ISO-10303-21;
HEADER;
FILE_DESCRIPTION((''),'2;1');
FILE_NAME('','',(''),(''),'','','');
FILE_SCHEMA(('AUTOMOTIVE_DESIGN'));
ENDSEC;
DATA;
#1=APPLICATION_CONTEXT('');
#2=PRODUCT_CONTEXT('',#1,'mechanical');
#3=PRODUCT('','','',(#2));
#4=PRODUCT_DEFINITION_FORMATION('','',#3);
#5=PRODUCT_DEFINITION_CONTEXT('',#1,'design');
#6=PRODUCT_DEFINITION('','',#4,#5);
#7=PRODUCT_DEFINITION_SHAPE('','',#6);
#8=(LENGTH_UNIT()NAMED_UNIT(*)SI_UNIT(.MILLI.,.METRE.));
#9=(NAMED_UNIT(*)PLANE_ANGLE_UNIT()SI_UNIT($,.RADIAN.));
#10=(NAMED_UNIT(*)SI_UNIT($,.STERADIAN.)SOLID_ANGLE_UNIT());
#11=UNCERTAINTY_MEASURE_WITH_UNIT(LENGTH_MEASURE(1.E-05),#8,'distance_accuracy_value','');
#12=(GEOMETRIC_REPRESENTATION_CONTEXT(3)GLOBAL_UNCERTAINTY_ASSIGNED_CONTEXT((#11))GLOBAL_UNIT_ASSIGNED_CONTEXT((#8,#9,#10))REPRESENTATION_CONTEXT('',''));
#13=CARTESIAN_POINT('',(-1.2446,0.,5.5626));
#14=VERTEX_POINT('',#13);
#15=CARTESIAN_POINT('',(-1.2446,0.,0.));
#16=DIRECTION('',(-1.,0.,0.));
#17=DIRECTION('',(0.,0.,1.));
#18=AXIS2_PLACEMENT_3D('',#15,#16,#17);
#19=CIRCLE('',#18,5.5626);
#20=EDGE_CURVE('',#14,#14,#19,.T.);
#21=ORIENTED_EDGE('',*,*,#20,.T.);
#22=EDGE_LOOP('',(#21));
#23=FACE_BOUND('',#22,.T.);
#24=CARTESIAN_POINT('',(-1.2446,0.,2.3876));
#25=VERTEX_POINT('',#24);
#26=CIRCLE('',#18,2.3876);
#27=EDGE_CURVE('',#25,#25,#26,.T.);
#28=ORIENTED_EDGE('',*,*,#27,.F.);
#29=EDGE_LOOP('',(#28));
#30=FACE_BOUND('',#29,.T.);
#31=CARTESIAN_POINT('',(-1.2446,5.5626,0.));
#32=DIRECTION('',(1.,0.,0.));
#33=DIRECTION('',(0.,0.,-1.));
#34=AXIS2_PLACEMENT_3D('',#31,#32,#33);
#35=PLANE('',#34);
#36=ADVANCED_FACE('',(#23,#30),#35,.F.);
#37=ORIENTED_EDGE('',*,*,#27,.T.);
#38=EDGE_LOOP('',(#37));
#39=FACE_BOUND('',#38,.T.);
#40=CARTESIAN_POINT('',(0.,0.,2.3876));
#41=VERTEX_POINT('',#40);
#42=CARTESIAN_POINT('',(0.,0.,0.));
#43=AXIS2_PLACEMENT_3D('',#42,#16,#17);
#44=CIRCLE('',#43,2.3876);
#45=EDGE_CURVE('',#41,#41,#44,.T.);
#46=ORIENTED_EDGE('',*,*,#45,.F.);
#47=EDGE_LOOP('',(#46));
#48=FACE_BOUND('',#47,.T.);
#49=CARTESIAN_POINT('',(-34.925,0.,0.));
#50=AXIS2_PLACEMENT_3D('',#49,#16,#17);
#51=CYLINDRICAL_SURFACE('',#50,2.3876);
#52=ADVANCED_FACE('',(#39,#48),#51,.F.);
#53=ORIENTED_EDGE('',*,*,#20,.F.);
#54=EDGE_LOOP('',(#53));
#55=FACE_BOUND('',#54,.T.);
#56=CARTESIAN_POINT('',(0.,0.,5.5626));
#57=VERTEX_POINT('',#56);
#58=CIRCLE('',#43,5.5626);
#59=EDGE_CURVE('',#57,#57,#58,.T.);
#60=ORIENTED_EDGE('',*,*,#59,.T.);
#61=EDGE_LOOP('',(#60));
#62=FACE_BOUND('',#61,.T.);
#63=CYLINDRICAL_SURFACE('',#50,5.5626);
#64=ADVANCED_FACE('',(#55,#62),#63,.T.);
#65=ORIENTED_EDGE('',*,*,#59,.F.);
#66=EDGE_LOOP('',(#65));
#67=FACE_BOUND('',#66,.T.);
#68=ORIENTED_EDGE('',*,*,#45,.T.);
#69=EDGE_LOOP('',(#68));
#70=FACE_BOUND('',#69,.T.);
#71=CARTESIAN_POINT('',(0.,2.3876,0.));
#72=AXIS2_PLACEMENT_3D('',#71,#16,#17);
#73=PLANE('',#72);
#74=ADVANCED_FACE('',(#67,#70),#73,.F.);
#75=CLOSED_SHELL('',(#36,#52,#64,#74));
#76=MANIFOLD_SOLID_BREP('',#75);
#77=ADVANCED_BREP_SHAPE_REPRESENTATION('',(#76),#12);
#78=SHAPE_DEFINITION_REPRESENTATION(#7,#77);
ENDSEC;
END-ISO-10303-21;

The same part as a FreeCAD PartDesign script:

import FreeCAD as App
import Part
import Sketcher

V = App.Vector
Q = App.Units.Quantity

doc = App.newDocument("Part")
body = doc.addObject("PartDesign::Body", "Body")

# Sketch on XY plane
sketch1 = doc.addObject("Sketcher::SketchObject", "Sketch")
body.addObject(sketch1)
sketch1.AttachmentSupport = (doc.XY_Plane, [""])
sketch1.MapMode = "FlatFace"
sketch1.addGeometry([
    Part.LineSegment(V(-1.2446, 5.5626, 0), V(-1.2446, 2.3876, 0)),
    Part.LineSegment(V(-1.2446, 2.3876, 0), V(0, 2.3876, 0)),
    Part.LineSegment(V(0, 2.3876, 0), V(0, 5.5626, 0)),
    Part.LineSegment(V(0, 5.5626, 0), V(-1.2446, 5.5626, 0)),
], False)
sketch1.addConstraint([
    Sketcher.Constraint("Coincident", 0, 2, 1, 1),
    Sketcher.Constraint("Coincident", 1, 2, 2, 1),
    Sketcher.Constraint("Coincident", 2, 2, 3, 1),
    Sketcher.Constraint("Coincident", 3, 2, 0, 1),
    Sketcher.Constraint("Vertical", 0),
    Sketcher.Constraint("Horizontal", 1),
    Sketcher.Constraint("Vertical", 2),
    Sketcher.Constraint("Horizontal", 3),
    Sketcher.Constraint("PointOnObject", 1, 2, -2),
    Sketcher.Constraint("DistanceX", 1, 1, 1, 2, Q("0.049 in")),
    Sketcher.Constraint("DistanceY", 0, 2, 0, 1, Q("0.125 in")),
    Sketcher.Constraint("DistanceY", -1, 1, 0, 2, Q("0.094 in")),
])
revolution = doc.addObject("PartDesign::Revolution", "Revolution")
body.addObject(revolution)
revolution.Profile = sketch1
revolution.ReferenceAxis = (sketch1, ["H_Axis"])
revolution.Angle = 360

doc.recompute()
